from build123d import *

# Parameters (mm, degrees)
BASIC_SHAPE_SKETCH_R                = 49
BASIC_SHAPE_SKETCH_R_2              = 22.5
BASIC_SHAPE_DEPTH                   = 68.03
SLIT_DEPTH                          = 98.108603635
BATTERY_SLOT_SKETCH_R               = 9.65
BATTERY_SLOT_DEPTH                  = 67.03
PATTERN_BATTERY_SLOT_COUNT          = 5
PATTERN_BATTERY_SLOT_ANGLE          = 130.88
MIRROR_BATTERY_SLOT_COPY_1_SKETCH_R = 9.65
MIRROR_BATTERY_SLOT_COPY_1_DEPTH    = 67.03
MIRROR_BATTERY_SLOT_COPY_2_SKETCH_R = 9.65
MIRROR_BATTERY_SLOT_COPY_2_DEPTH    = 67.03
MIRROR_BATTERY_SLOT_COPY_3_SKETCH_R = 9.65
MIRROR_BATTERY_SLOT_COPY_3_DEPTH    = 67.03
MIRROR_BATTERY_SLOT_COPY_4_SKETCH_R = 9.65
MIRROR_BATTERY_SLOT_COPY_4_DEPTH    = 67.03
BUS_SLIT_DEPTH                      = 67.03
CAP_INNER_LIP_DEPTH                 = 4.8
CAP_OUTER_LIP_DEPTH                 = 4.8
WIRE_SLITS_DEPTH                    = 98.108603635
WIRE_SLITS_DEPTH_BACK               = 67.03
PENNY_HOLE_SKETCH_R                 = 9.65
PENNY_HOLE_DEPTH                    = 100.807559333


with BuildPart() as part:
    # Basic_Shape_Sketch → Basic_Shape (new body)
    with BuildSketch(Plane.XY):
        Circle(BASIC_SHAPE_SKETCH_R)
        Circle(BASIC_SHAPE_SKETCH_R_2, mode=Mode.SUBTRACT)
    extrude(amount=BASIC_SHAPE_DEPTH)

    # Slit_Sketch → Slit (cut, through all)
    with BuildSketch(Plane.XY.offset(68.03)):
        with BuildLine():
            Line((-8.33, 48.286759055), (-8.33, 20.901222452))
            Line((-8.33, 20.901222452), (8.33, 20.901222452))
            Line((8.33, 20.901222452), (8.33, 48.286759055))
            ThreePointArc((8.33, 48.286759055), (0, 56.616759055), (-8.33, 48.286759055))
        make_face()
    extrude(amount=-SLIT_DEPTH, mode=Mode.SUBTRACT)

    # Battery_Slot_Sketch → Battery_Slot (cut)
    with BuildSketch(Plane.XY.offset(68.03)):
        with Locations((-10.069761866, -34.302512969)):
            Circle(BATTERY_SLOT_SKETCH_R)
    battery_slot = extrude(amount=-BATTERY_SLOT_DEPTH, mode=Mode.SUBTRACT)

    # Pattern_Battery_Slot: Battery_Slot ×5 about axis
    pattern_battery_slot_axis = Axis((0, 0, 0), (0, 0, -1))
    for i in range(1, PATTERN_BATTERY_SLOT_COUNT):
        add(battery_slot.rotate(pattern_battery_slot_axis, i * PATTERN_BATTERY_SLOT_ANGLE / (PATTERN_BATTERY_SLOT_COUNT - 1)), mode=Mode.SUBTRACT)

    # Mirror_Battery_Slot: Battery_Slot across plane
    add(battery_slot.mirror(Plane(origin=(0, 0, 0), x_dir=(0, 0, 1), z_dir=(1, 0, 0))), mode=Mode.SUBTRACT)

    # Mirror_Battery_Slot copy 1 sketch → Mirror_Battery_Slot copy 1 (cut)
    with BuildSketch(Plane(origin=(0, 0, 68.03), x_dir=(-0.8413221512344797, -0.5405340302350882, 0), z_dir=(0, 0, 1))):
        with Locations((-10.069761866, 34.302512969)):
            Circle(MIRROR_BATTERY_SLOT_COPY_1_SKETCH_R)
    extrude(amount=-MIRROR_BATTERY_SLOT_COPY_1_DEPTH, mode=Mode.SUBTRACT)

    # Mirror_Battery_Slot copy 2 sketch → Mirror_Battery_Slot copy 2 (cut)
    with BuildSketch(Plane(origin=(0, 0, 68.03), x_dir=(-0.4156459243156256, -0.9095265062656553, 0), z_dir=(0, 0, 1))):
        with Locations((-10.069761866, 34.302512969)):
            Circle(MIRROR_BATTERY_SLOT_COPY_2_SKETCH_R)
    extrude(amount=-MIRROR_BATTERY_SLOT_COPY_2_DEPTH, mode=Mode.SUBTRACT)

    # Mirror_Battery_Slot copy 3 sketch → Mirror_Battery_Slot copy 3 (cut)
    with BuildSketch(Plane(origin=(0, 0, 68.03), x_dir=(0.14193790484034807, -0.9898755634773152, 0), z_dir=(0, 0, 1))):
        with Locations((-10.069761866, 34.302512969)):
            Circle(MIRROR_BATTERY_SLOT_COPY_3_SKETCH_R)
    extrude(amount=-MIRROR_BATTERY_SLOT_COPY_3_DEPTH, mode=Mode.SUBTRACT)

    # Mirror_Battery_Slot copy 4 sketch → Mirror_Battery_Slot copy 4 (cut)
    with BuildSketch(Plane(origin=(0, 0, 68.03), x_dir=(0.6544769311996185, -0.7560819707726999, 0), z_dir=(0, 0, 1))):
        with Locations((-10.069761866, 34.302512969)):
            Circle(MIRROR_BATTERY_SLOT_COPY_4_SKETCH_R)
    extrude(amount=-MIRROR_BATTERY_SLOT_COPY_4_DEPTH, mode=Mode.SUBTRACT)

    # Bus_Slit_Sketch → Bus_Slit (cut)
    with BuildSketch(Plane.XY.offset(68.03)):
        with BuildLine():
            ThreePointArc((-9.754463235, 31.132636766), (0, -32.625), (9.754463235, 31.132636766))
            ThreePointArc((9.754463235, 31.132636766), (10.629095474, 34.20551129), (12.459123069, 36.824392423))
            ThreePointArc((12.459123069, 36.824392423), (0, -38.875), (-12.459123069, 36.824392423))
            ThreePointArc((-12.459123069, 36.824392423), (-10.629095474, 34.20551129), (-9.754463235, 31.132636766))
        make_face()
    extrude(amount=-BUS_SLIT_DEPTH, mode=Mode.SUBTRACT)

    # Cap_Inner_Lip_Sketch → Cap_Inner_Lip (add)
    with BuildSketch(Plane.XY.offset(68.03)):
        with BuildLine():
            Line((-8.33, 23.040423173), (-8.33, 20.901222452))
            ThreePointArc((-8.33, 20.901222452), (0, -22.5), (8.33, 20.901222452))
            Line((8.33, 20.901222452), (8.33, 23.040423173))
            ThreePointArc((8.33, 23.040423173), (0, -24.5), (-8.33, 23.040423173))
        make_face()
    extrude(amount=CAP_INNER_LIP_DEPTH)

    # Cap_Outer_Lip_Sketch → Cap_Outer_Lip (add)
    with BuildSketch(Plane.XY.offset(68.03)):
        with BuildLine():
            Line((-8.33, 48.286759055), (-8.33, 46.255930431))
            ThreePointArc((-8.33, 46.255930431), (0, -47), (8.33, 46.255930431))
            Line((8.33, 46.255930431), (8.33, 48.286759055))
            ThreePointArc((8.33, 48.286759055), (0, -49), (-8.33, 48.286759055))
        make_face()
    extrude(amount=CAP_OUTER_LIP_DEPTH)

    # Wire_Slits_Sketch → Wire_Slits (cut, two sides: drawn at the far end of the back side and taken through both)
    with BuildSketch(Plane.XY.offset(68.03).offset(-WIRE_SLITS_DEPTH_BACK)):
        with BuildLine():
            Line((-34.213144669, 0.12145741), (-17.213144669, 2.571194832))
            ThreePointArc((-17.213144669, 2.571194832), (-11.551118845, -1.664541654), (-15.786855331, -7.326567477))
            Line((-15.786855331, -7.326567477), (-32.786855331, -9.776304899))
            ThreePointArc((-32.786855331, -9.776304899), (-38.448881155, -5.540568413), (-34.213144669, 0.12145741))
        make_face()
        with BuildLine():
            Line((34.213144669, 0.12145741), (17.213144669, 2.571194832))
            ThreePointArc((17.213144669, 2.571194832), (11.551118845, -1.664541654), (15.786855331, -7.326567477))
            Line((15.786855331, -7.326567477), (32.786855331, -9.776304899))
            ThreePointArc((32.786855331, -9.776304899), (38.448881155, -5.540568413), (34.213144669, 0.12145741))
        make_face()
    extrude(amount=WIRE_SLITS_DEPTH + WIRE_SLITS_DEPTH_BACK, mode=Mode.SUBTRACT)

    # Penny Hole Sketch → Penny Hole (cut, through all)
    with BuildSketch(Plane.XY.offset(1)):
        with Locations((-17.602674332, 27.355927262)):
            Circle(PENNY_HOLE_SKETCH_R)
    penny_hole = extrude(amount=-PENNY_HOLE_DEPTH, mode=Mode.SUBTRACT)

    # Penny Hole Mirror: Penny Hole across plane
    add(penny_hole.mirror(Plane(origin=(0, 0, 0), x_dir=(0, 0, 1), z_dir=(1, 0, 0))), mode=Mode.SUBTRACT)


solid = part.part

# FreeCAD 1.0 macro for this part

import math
import FreeCAD as App
import Part
import Sketcher

V = App.Vector
Q = App.Units.Quantity

doc = App.newDocument("Part")
body = doc.addObject("PartDesign::Body", "Body")

sketch1 = doc.addObject("Sketcher::SketchObject", "Sketch")
body.addObject(sketch1)
sketch1.AttachmentSupport = (doc.XY_Plane, [""])
sketch1.MapMode = "FlatFace"
sketch1.addGeometry([
    Part.Circle(V(0, 0, 0), V(0, 0, 1), 49),
    Part.Circle(V(0, 0, 0), V(0, 0, 1), 22),
], False)
sketch1.addConstraint([
    Sketcher.Constraint("Coincident", 0, 3, -1, 1),
    Sketcher.Constraint("Coincident", 1, 3, -1, 1),
    Sketcher.Constraint("Diameter", 0, Q("98 mm")),
    Sketcher.Constraint("Diameter", 1, Q("45 mm")),
])
pad1 = doc.addObject("PartDesign::Pad", "Pad")
body.addObject(pad1)
pad1.Profile = sketch1
pad1.Length = 68.03

sketch2 = doc.addObject("Sketcher::SketchObject", "Sketch001")
body.addObject(sketch2)
sketch2.AttachmentSupport = (doc.XY_Plane, [""])
sketch2.MapMode = "FlatFace"
sketch2.AttachmentOffset = App.Placement(V(0, 0, 68.03), App.Rotation())
sketch2.addGeometry([
    Part.LineSegment(V(-8, 48, 0), V(-8, 21, 0)),
    Part.LineSegment(V(-8, 21, 0), V(8, 21, 0)),
    Part.LineSegment(V(8, 21, 0), V(8, 48, 0)),
    Part.ArcOfCircle(Part.Circle(V(0, 48, 0), V(0, 0, 1), 8), math.radians(0), math.radians(180)),
], False)
sketch2.addConstraint([
    Sketcher.Constraint("Coincident", 0, 2, 1, 1),
    Sketcher.Constraint("Coincident", 1, 2, 2, 1),
    Sketcher.Constraint("Tangent", 2, 2, 3, 1),
    Sketcher.Constraint("Tangent", 3, 2, 0, 1),
    Sketcher.Constraint("Vertical", 0),
    Sketcher.Constraint("Horizontal", 1),
    Sketcher.Constraint("Vertical", 2),
    Sketcher.Constraint("PointOnObject", 3, 3, -2),
    Sketcher.Constraint("Radius", 3, Q("8.33 mm")),
    Sketcher.Constraint("DistanceY", 0, 2, 0, 1, Q("27.385537 mm")),
    Sketcher.Constraint("DistanceY", -1, 1, 3, 3, Q("48.286759 mm")),
])
pocket1 = doc.addObject("PartDesign::Pocket", "Pocket")
body.addObject(pocket1)
pocket1.Profile = sketch2
pocket1.Type = "ThroughAll"

sketch3 = doc.addObject("Sketcher::SketchObject", "Sketch002")
body.addObject(sketch3)
sketch3.AttachmentSupport = (doc.XY_Plane, [""])
sketch3.MapMode = "FlatFace"
sketch3.AttachmentOffset = App.Placement(V(0, 0, 68.03), App.Rotation())
sketch3.addGeometry(Part.Circle(V(-10, -34, 0), V(0, 0, 1), 10), False)
sketch3.addConstraint([
    Sketcher.Constraint("Diameter", 0, Q("19.3 mm")),
    Sketcher.Constraint("DistanceX", 0, 3, -1, 1, Q("10.069762 mm")),
    Sketcher.Constraint("DistanceY", 0, 3, -1, 1, Q("34.302513 mm")),
])
pocket2 = doc.addObject("PartDesign::Pocket", "Pocket001")
body.addObject(pocket2)
pocket2.Profile = sketch3
pocket2.Length = 67.03
doc.recompute()

polarpattern = doc.addObject("PartDesign::PolarPattern", "PolarPattern")
body.addObject(polarpattern)
polarpattern.Originals = [pocket2]
polarpattern.Axis = (doc.Z_Axis, [""])
polarpattern.Angle = 130.88
polarpattern.Occurrences = 5
polarpattern.Reversed = True
body.Tip = polarpattern
doc.recompute()

mirrored = doc.addObject("PartDesign::Mirrored", "Mirrored")
body.addObject(mirrored)
mirrored.Originals = [pocket2]
mirrored.MirrorPlane = (doc.YZ_Plane, [""])
body.Tip = mirrored

sketch4 = doc.addObject("Sketcher::SketchObject", "Sketch003")
body.addObject(sketch4)
sketch4.AttachmentSupport = (doc.XY_Plane, [""])
sketch4.MapMode = "FlatFace"
sketch4.AttachmentOffset = App.Placement(V(0, 0, 68.03), App.Rotation())
sketch4.addGeometry(Part.Circle(V(27, -23, 0), V(0, 0, 1), 10), False)
sketch4.addConstraint([
    Sketcher.Constraint("Diameter", 0, Q("19.3 mm")),
    Sketcher.Constraint("DistanceX", -1, 1, 0, 3, Q("27.013589 mm")),
    Sketcher.Constraint("DistanceY", 0, 3, -1, 1, Q("23.416415 mm")),
])
pocket3 = doc.addObject("PartDesign::Pocket", "Pocket002")
body.addObject(pocket3)
pocket3.Profile = sketch4
pocket3.Length = 67.03

sketch5 = doc.addObject("Sketcher::SketchObject", "Sketch004")
body.addObject(sketch5)
sketch5.AttachmentSupport = (doc.XY_Plane, [""])
sketch5.MapMode = "FlatFace"
sketch5.AttachmentOffset = App.Placement(V(0, 0, 68.03), App.Rotation())
sketch5.addGeometry(Part.Circle(V(35, -5, 0), V(0, 0, 1), 10), False)
sketch5.addConstraint([
    Sketcher.Constraint("Diameter", 0, Q("19.3 mm")),
    Sketcher.Constraint("DistanceX", -1, 1, 0, 3, Q("35.3845 mm")),
    Sketcher.Constraint("DistanceY", 0, 3, -1, 1, Q("5.098984 mm")),
])
pocket4 = doc.addObject("PartDesign::Pocket", "Pocket003")
body.addObject(pocket4)
pocket4.Profile = sketch5
pocket4.Length = 67.03

sketch6 = doc.addObject("Sketcher::SketchObject", "Sketch005")
body.addObject(sketch6)
sketch6.AttachmentSupport = (doc.XY_Plane, [""])
sketch6.MapMode = "FlatFace"
sketch6.AttachmentOffset = App.Placement(V(0, 0, 68.03), App.Rotation())
sketch6.addGeometry(Part.Circle(V(33, 15, 0), V(0, 0, 1), 10), False)
sketch6.addConstraint([
    Sketcher.Constraint("Diameter", 0, Q("19.3 mm")),
    Sketcher.Constraint("DistanceX", -1, 1, 0, 3, Q("32.525938 mm")),
    Sketcher.Constraint("DistanceY", -1, 1, 0, 3, Q("14.836638 mm")),
])
pocket5 = doc.addObject("PartDesign::Pocket", "Pocket004")
body.addObject(pocket5)
pocket5.Profile = sketch6
pocket5.Length = 67.03

sketch7 = doc.addObject("Sketcher::SketchObject", "Sketch006")
body.addObject(sketch7)
sketch7.AttachmentSupport = (doc.XY_Plane, [""])
sketch7.MapMode = "FlatFace"
sketch7.AttachmentOffset = App.Placement(V(0, 0, 68.03), App.Rotation())
sketch7.addGeometry(Part.Circle(V(19, 30, 0), V(0, 0, 1), 10), False)
sketch7.addConstraint([
    Sketcher.Constraint("Diameter", 0, Q("19.3 mm")),
    Sketcher.Constraint("DistanceY", -1, 1, 0, 3, Q("30.063769 mm")),
    Sketcher.Constraint("DistanceX", -1, 1, 0, 3, Q("19.345085 mm")),
])
pocket6 = doc.addObject("PartDesign::Pocket", "Pocket005")
body.addObject(pocket6)
pocket6.Profile = sketch7
pocket6.Length = 67.03

sketch8 = doc.addObject("Sketcher::SketchObject", "Sketch007")
body.addObject(sketch8)
sketch8.AttachmentSupport = (doc.XY_Plane, [""])
sketch8.MapMode = "FlatFace"
sketch8.AttachmentOffset = App.Placement(V(0, 0, 68.03), App.Rotation())
sketch8.addGeometry([
    Part.ArcOfCircle(Part.Circle(V(0, 0, 0), V(0, 0, 1), 33), math.radians(107), math.radians(433)),
    Part.ArcOfCircle(Part.Circle(V(-19, 30, 0), V(0, 0, 1), 10), math.radians(6), math.radians(44)),
    Part.ArcOfCircle(Part.Circle(V(0, 0, 0), V(0, 0, 1), 39), math.radians(109), math.radians(431)),
    Part.ArcOfCircle(Part.Circle(V(19, 30, 0), V(0, 0, 1), 10), math.radians(136), math.radians(174)),
], False)
sketch8.addConstraint([
    Sketcher.Constraint("Coincident", 0, 1, 1, 1),
    Sketcher.Constraint("Coincident", 1, 2, 2, 1),
    Sketcher.Constraint("Coincident", 2, 2, 3, 1),
    Sketcher.Constraint("Coincident", 3, 2, 0, 2),
    Sketcher.Constraint("Coincident", 0, 3, -1, 1),
    Sketcher.Constraint("Coincident", 2, 3, -1, 1),
    Sketcher.Constraint("Equal", 1, 3),
    Sketcher.Constraint("Symmetric", 1, 3, 3, 3, -2),
    Sketcher.Constraint("Radius", 1, Q("9.65 mm")),
    Sketcher.Constraint("Radius", 0, Q("32.625 mm")),
    Sketcher.Constraint("Radius", 2, Q("38.875 mm")),
    Sketcher.Constraint("DistanceY", -1, 1, 1, 3, Q("30.063769 mm")),
    Sketcher.Constraint("DistanceX", 1, 3, 3, 3, Q("38.69017 mm")),
])
pocket7 = doc.addObject("PartDesign::Pocket", "Pocket006")
body.addObject(pocket7)
pocket7.Profile = sketch8
pocket7.Length = 67.03

sketch9 = doc.addObject("Sketcher::SketchObject", "Sketch008")
body.addObject(sketch9)
sketch9.AttachmentSupport = (doc.XY_Plane, [""])
sketch9.MapMode = "FlatFace"
sketch9.AttachmentOffset = App.Placement(V(0, 0, 68.03), App.Rotation())
sketch9.addGeometry([
    Part.LineSegment(V(-8.3, 20.9, 0), V(-8.3, 23, 0)),
    Part.ArcOfCircle(Part.Circle(V(0, 0, 0), V(0, 0, 1), 24.5), math.radians(110), math.radians(430)),
    Part.LineSegment(V(8.3, 23, 0), V(8.3, 20.9, 0)),
    Part.ArcOfCircle(Part.Circle(V(0, 0, 0), V(0, 0, 1), 22.5), math.radians(112), math.radians(428)),
], False)
sketch9.addConstraint([
    Sketcher.Constraint("Coincident", 0, 2, 1, 1),
    Sketcher.Constraint("Coincident", 1, 2, 2, 1),
    Sketcher.Constraint("Coincident", 2, 2, 3, 2),
    Sketcher.Constraint("Coincident", 3, 1, 0, 1),
    Sketcher.Constraint("Vertical", 0),
    Sketcher.Constraint("Vertical", 2),
    Sketcher.Constraint("Coincident", 1, 3, -1, 1),
    Sketcher.Constraint("Coincident", 3, 3, -1, 1),
    Sketcher.Constraint("Horizontal", 0, 2, 1, 2),
    Sketcher.Constraint("Radius", 1, Q("24.5 mm")),
    Sketcher.Constraint("Radius", 3, Q("22.5 mm")),
    Sketcher.Constraint("DistanceX", 0, 2, -1, 1, Q("8.33 mm")),
])
pad2 = doc.addObject("PartDesign::Pad", "Pad001")
body.addObject(pad2)
pad2.Profile = sketch9
pad2.Length = 4.8

sketch10 = doc.addObject("Sketcher::SketchObject", "Sketch009")
body.addObject(sketch10)
sketch10.AttachmentSupport = (doc.XY_Plane, [""])
sketch10.MapMode = "FlatFace"
sketch10.AttachmentOffset = App.Placement(V(0, 0, 68.03), App.Rotation())
sketch10.addGeometry([
    Part.LineSegment(V(-8.3, 46.3, 0), V(-8.3, 48.3, 0)),
    Part.ArcOfCircle(Part.Circle(V(0, 0, 0), V(0, 0, 1), 49), math.radians(100), math.radians(440)),
    Part.LineSegment(V(8.3, 48.3, 0), V(8.3, 46.3, 0)),
    Part.ArcOfCircle(Part.Circle(V(0, 0, 0), V(0, 0, 1), 47), math.radians(100), math.radians(440)),
], False)
sketch10.addConstraint([
    Sketcher.Constraint("Coincident", 0, 2, 1, 1),
    Sketcher.Constraint("Coincident", 1, 2, 2, 1),
    Sketcher.Constraint("Coincident", 2, 2, 3, 2),
    Sketcher.Constraint("Coincident", 3, 1, 0, 1),
    Sketcher.Constraint("Vertical", 0),
    Sketcher.Constraint("Vertical", 2),
    Sketcher.Constraint("Coincident", 1, 3, -1, 1),
    Sketcher.Constraint("Coincident", 3, 3, -1, 1),
    Sketcher.Constraint("Horizontal", 0, 2, 1, 2),
    Sketcher.Constraint("Radius", 1, Q("49 mm")),
    Sketcher.Constraint("Radius", 3, Q("47 mm")),
    Sketcher.Constraint("DistanceX", 0, 2, -1, 1, Q("8.33 mm")),
])
pad3 = doc.addObject("PartDesign::Pad", "Pad002")
body.addObject(pad3)
pad3.Profile = sketch10
pad3.Length = 4.8

sketch11 = doc.addObject("Sketcher::SketchObject", "Sketch010")
body.addObject(sketch11)
sketch11.AttachmentSupport = (doc.XY_Plane, [""])
sketch11.MapMode = "FlatFace"
sketch11.AttachmentOffset = App.Placement(V(0, 0, 68.03), App.Rotation())
sketch11.addGeometry([
    Part.LineSegment(V(-17, 3, 0), V(-34, 0, 0)),
    Part.ArcOfCircle(Part.Circle(V(-34, -5, 0), V(0, 0, 1), 5), math.radians(98), math.radians(278)),
    Part.LineSegment(V(-33, -10, 0), V(-16, -7, 0)),
    Part.ArcOfCircle(Part.Circle(V(-16, -2, 0), V(0, 0, 1), 5), math.radians(-82), math.radians(98)),
    Part.LineSegment(V(34, 0, 0), V(17, 3, 0)),
    Part.ArcOfCircle(Part.Circle(V(16, -2, 0), V(0, 0, 1), 5), math.radians(82), math.radians(262)),
    Part.LineSegment(V(16, -7, 0), V(33, -10, 0)),
    Part.ArcOfCircle(Part.Circle(V(34, -5, 0), V(0, 0, 1), 5), math.radians(-98), math.radians(82)),
], False)
sketch11.addConstraint([
    Sketcher.Constraint("Tangent", 0, 2, 1, 1),
    Sketcher.Constraint("Tangent", 1, 2, 2, 1),
    Sketcher.Constraint("Tangent", 2, 2, 3, 1),
    Sketcher.Constraint("Tangent", 3, 2, 0, 1),
    Sketcher.Constraint("Tangent", 4, 2, 5, 1),
    Sketcher.Constraint("Tangent", 5, 2, 6, 1),
    Sketcher.Constraint("Tangent", 6, 2, 7, 1),
    Sketcher.Constraint("Tangent", 7, 2, 4, 1),
    Sketcher.Constraint("Equal", 1, 3),
    Sketcher.Constraint("Equal", 3, 5),
    Sketcher.Constraint("Equal", 5, 7),
    Sketcher.Constraint("Symmetric", 3, 3, 5, 3, -2),
    Sketcher.Constraint("Symmetric", 1, 3, 7, 3, -2),
    Sketcher.Constraint("Radius", 1, Q("5 mm")),
    Sketcher.Constraint("Angle", 0, Q("-171.8 deg")),
    Sketcher.Constraint("DistanceX", 1, 3, 3, 3, Q("17 mm")),
    Sketcher.Constraint("DistanceX", 3, 3, 5, 3, Q("33 mm")),
    Sketcher.Constraint("DistanceY", 1, 3, -1, 1, Q("4.827424 mm")),
])
pocket8 = doc.addObject("PartDesign::Pocket", "Pocket007")
body.addObject(pocket8)
pocket8.Profile = sketch11
pocket8.Type = "TwoLengths"
pocket8.Length = 98.108604
pocket8.Length2 = 67.03
pocket8.Reversed = True

sketch12 = doc.addObject("Sketcher::SketchObject", "Sketch011")
body.addObject(sketch12)
sketch12.AttachmentSupport = (doc.XY_Plane, [""])
sketch12.MapMode = "FlatFace"
sketch12.AttachmentOffset = App.Placement(V(0, 0, 1), App.Rotation())
sketch12.addGeometry(Part.Circle(V(-18, 27, 0), V(0, 0, 1), 10), False)
sketch12.addConstraint([
    Sketcher.Constraint("Diameter", 0, Q("19.3 mm")),
    Sketcher.Constraint("DistanceX", 0, 3, -1, 1, Q("17.602674 mm")),
    Sketcher.Constraint("DistanceY", -1, 1, 0, 3, Q("27.355927 mm")),
])
pocket9 = doc.addObject("PartDesign::Pocket", "Pocket008")
body.addObject(pocket9)
pocket9.Profile = sketch12
pocket9.Type = "ThroughAll"
doc.recompute()

mirrored2 = doc.addObject("PartDesign::Mirrored", "Mirrored001")
body.addObject(mirrored2)
mirrored2.Originals = [pocket9]
mirrored2.MirrorPlane = (doc.YZ_Plane, [""])
body.Tip = mirrored2

doc.recompute()
